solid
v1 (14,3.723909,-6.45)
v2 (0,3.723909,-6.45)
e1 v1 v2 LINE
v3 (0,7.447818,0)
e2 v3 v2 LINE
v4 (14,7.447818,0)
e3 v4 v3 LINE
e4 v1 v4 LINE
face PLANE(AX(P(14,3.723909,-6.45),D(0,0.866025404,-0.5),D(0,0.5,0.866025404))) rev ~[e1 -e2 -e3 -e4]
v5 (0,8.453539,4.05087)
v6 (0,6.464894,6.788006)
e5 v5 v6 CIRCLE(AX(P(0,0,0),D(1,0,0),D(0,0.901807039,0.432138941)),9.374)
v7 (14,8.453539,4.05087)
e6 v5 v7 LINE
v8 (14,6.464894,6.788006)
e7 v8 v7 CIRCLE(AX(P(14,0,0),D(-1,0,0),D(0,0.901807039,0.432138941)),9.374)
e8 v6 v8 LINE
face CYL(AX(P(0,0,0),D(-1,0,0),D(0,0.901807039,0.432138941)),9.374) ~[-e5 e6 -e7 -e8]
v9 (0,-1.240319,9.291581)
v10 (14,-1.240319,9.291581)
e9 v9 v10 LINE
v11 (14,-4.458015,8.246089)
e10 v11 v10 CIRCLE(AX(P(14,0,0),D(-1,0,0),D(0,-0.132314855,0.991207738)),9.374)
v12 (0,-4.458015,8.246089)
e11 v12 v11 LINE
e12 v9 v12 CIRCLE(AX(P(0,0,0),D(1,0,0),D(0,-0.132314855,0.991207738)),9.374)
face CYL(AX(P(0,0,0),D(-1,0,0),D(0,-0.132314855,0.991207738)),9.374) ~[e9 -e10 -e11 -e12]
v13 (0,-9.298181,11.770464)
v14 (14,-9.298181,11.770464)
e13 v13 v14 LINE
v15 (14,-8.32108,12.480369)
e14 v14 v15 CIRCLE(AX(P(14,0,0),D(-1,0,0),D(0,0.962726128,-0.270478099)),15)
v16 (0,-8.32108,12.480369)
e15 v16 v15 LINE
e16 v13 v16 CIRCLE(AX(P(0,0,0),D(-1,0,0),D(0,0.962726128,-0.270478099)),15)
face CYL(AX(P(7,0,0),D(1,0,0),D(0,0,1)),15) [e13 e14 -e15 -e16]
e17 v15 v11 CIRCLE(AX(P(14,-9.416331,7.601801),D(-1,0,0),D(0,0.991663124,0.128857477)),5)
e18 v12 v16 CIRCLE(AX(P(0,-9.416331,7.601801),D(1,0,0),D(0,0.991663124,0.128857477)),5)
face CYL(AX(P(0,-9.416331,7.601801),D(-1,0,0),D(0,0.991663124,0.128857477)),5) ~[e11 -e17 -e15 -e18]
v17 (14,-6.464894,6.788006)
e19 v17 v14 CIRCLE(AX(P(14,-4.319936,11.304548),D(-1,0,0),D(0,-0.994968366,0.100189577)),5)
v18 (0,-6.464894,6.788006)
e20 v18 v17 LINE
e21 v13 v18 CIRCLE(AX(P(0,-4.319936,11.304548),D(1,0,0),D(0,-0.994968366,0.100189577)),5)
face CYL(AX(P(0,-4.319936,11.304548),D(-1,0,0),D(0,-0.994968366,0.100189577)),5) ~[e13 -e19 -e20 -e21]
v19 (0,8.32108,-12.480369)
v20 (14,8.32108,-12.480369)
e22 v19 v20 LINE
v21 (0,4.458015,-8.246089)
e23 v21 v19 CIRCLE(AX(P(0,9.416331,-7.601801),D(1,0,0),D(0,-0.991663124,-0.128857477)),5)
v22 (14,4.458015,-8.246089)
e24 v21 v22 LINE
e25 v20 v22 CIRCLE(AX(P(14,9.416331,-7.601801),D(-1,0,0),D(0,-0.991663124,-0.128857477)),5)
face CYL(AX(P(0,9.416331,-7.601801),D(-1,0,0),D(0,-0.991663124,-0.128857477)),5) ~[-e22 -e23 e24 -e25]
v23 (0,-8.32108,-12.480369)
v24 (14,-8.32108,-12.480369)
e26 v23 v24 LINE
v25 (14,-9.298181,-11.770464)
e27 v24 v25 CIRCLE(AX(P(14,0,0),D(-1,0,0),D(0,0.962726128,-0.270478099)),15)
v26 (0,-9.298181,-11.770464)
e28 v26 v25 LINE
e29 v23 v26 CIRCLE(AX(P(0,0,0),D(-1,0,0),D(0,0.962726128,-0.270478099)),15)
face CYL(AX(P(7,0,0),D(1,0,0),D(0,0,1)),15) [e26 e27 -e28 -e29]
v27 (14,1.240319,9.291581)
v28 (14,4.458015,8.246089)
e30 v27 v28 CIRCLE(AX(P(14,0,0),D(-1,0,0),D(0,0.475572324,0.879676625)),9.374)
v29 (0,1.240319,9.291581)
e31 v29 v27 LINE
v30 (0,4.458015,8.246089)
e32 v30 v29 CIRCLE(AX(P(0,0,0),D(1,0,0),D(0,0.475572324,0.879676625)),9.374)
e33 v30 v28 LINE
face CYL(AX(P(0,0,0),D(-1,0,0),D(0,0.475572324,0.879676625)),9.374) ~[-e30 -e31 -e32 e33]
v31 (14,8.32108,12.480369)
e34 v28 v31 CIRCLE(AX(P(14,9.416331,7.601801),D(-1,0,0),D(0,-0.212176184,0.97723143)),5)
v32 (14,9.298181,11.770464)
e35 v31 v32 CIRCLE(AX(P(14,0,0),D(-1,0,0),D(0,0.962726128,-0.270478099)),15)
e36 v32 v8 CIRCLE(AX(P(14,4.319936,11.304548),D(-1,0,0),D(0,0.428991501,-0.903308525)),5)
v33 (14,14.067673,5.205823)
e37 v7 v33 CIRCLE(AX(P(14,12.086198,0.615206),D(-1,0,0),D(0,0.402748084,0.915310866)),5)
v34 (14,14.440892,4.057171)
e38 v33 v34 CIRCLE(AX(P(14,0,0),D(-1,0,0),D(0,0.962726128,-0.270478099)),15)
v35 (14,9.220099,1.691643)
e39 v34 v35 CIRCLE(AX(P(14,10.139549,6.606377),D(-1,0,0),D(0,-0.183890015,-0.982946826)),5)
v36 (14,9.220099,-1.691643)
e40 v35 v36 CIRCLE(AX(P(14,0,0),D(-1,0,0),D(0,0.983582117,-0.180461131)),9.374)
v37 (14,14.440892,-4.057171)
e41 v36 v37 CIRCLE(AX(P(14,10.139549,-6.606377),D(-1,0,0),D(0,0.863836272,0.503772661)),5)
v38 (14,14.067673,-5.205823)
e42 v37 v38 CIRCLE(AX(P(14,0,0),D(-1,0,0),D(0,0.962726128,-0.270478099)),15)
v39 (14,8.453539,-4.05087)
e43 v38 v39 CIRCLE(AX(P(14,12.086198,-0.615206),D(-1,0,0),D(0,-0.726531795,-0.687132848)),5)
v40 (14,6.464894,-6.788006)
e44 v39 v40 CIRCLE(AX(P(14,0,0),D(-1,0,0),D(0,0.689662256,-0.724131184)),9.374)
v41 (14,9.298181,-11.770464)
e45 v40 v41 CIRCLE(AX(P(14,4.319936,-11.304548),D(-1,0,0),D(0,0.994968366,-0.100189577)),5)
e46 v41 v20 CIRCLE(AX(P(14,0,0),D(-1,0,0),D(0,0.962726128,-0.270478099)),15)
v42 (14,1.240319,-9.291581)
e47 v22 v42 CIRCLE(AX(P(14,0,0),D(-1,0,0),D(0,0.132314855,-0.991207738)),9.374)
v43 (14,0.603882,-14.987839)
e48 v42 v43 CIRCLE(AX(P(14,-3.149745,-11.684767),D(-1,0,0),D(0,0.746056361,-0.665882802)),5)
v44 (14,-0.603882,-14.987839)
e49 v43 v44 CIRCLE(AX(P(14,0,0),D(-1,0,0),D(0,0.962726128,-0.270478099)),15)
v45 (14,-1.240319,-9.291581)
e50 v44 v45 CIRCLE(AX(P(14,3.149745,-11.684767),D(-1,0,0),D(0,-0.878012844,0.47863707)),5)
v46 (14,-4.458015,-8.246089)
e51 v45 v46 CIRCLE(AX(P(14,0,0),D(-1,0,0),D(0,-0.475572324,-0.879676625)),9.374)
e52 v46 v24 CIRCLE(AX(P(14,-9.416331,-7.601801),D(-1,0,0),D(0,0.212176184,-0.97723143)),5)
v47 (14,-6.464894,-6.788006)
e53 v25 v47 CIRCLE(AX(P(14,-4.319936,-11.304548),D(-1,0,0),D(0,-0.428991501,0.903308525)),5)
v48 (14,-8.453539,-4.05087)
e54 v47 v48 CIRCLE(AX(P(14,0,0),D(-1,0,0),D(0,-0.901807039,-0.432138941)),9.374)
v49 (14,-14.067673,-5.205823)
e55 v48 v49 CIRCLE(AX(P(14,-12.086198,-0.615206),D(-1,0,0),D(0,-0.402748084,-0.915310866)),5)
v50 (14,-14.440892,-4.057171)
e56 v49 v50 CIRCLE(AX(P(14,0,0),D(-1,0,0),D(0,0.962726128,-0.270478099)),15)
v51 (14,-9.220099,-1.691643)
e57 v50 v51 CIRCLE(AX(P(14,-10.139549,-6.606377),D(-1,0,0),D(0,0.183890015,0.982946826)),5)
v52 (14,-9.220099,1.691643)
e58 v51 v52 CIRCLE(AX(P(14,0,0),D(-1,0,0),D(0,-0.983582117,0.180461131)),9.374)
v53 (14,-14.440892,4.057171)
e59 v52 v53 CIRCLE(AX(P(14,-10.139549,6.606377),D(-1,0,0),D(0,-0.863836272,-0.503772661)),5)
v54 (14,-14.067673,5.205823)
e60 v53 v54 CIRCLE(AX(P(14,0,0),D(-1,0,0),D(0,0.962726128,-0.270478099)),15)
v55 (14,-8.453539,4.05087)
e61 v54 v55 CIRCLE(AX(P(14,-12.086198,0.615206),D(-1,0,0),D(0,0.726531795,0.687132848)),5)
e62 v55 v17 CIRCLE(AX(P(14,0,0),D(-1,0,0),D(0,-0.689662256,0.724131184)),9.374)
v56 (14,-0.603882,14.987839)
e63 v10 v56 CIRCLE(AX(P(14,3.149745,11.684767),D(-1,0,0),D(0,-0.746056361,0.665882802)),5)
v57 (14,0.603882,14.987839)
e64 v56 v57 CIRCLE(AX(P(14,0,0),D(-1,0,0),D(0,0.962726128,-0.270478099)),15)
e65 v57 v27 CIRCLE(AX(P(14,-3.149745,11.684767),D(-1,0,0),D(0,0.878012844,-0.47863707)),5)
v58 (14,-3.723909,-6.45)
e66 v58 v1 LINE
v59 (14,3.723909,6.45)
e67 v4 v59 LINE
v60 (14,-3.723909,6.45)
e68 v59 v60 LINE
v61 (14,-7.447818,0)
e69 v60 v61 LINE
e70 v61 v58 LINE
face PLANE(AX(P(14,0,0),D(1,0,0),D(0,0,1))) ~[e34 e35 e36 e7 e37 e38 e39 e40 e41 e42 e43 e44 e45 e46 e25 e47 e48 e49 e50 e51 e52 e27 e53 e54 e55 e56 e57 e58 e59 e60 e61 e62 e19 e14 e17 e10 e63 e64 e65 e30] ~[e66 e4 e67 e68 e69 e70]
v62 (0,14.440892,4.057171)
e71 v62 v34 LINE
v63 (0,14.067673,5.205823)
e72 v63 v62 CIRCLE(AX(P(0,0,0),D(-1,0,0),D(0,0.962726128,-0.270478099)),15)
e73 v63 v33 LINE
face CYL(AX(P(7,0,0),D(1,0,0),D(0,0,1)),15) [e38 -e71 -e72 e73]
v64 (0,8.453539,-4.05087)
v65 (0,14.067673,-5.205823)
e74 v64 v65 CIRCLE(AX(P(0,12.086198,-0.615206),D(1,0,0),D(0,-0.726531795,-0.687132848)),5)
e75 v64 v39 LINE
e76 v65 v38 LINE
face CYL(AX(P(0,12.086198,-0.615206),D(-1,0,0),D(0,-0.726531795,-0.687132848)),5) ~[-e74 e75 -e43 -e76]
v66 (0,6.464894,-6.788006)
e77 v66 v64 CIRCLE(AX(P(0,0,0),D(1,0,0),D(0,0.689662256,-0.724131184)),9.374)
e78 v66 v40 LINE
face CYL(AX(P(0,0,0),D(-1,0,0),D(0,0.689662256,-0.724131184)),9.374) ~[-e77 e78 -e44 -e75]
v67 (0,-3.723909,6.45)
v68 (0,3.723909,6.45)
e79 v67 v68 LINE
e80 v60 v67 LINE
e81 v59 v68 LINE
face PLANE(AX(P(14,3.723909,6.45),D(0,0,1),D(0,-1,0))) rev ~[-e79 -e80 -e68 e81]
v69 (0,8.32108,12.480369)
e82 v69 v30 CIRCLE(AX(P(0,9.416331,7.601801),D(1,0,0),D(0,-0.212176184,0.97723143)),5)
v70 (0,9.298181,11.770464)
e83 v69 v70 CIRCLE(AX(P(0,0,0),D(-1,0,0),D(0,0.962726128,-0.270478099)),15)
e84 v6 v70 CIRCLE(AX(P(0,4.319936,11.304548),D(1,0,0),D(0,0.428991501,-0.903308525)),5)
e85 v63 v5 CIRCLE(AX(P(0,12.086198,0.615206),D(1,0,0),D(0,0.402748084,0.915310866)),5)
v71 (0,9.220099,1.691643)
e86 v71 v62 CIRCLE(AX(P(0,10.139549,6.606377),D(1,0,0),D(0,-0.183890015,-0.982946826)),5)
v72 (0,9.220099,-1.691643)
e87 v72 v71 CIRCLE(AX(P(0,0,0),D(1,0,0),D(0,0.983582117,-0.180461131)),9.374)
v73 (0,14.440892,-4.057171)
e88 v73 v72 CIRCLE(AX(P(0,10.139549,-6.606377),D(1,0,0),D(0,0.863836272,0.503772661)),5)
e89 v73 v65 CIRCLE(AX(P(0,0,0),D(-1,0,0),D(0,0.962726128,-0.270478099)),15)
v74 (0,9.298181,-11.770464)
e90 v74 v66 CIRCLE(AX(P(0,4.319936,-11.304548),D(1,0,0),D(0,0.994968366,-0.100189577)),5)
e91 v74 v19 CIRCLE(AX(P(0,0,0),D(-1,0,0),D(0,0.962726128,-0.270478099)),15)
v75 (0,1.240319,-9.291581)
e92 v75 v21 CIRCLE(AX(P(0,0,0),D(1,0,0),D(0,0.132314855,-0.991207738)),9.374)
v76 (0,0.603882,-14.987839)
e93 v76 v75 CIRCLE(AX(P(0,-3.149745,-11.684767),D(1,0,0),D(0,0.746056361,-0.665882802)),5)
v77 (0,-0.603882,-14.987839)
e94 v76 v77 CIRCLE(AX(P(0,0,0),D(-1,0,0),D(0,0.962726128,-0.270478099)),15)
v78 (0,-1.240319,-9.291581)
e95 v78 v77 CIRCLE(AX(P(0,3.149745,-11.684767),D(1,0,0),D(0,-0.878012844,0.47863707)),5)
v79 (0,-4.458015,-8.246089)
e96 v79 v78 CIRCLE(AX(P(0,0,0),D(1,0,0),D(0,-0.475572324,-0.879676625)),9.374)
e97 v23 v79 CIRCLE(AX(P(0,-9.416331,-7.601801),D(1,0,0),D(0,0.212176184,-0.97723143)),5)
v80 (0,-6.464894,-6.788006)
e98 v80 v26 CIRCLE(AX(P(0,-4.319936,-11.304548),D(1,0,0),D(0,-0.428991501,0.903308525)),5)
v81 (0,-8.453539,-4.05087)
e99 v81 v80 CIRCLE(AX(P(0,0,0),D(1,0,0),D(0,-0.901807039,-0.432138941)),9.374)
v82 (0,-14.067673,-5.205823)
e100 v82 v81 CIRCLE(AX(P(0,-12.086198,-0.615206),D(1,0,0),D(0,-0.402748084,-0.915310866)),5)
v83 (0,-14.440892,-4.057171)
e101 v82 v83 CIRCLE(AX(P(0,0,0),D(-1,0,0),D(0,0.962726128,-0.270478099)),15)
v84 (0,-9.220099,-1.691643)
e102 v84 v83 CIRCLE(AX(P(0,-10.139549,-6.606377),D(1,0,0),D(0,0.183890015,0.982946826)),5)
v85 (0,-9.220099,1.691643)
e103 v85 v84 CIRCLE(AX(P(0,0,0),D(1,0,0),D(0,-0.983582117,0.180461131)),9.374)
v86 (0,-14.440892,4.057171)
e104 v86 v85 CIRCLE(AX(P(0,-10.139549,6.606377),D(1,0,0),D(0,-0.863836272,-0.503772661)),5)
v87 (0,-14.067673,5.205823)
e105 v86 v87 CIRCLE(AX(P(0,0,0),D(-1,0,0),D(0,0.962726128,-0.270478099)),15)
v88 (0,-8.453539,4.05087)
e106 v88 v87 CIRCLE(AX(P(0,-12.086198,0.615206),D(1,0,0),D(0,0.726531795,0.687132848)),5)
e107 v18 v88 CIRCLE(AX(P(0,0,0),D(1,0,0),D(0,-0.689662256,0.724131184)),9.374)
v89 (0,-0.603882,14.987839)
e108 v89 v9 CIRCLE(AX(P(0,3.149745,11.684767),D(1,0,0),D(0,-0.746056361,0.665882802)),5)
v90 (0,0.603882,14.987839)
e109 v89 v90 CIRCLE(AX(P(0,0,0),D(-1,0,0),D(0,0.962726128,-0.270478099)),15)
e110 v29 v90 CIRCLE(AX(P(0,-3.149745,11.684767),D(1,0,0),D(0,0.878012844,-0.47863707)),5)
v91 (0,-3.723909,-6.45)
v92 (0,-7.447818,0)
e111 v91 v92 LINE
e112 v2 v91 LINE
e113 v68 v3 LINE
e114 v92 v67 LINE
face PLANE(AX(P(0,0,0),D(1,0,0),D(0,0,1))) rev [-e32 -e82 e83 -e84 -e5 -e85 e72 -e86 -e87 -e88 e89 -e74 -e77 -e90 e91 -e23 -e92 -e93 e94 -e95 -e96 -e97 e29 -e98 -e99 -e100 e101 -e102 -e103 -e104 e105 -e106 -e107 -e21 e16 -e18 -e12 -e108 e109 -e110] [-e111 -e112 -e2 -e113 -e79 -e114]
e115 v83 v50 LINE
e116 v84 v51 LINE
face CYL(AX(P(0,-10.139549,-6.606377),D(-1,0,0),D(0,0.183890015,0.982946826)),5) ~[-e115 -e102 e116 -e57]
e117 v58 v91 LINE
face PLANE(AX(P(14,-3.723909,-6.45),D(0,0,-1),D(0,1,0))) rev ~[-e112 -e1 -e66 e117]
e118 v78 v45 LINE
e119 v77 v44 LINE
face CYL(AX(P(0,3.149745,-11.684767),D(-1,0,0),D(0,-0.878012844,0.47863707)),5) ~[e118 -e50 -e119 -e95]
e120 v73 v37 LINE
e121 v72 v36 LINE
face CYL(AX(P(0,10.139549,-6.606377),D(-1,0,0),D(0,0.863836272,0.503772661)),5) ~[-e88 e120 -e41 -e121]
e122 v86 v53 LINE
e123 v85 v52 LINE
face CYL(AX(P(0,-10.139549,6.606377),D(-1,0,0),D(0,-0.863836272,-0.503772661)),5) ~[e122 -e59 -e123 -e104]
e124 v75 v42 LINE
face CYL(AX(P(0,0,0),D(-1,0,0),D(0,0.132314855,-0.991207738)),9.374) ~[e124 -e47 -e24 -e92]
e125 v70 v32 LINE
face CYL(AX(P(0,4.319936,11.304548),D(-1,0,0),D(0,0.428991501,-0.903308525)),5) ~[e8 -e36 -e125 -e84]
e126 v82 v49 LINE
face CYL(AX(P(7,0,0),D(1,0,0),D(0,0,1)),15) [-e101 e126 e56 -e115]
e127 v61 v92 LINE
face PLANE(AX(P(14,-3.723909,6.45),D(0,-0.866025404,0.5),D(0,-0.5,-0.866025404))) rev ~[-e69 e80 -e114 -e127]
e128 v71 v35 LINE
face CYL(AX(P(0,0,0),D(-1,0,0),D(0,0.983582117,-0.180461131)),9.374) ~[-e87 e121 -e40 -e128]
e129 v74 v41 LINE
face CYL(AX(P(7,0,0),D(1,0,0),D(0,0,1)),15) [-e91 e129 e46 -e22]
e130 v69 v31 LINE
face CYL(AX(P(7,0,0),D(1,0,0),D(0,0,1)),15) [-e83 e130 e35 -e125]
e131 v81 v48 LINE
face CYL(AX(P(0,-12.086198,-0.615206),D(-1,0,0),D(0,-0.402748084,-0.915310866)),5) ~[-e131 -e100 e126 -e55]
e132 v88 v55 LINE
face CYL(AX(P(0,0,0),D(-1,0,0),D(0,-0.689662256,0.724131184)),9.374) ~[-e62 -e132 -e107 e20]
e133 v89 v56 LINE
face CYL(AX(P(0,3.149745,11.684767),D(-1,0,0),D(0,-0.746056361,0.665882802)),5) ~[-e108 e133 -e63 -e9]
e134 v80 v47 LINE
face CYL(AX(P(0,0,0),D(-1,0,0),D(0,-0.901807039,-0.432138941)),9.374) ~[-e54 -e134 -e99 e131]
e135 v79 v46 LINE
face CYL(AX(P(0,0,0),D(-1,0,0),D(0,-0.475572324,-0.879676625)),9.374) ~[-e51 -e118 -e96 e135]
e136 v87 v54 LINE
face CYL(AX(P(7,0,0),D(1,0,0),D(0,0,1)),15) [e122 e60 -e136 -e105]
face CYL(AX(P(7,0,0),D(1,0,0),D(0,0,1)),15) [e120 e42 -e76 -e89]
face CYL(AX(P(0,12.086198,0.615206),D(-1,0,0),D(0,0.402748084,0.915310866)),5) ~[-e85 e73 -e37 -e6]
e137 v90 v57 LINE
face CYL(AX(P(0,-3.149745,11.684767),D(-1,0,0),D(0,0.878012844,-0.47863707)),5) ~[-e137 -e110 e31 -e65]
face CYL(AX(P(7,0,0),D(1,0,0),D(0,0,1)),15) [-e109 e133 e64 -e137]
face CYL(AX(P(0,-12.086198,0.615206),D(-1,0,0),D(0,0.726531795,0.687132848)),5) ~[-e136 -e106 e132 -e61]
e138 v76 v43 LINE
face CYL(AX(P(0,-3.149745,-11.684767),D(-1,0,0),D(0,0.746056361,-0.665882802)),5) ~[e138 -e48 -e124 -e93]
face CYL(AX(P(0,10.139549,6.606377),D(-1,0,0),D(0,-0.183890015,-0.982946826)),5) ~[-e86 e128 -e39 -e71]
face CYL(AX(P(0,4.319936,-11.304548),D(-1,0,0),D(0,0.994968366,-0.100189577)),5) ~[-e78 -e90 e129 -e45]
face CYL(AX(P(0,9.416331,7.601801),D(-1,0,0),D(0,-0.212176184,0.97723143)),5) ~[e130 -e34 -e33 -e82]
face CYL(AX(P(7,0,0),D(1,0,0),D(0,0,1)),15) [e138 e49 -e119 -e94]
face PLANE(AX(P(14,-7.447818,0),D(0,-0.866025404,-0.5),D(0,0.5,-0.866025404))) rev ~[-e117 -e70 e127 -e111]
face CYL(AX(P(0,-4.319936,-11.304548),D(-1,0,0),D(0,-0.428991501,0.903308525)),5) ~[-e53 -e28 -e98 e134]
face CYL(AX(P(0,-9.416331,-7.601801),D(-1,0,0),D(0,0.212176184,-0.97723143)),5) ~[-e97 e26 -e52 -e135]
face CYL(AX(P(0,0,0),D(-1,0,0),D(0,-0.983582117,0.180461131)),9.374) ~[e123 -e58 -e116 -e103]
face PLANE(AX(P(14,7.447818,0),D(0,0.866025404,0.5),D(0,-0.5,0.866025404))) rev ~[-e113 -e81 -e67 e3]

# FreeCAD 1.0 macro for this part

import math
import FreeCAD as App
import Part
import Sketcher
from FreeCAD import Vector
Q = App.Units.Quantity


def add_polygon(sketch, points):
    """Adds a closed chain of lines whose ends are joined by coincident constraints."""
    first, n = sketch.GeometryCount, len(points)
    for a, b in zip(points, points[1:] + points[:1]):
        sketch.addGeometry(Part.LineSegment(App.Vector(*a, 0), App.Vector(*b, 0)), False)
    for i in range(n):
        sketch.addConstraint(Sketcher.Constraint("Coincident", first + i, 2, first + (i + 1) % n, 1))

doc = App.newDocument("Part")
body = doc.addObject("PartDesign::Body", "Body")

# Sketch on XZ plane
sketch1 = body.newObject("Sketcher::SketchObject", "Sketch")
sketch1.AttachmentSupport = (doc.getObject("XZ_Plane"), [""])
sketch1.MapMode = "FlatFace"
add_polygon(sketch1, [(0, -15), (0, 0), (14, 0), (14, -15)])  # lines 0-3
sketch1.addConstraint([
    Sketcher.Constraint("Vertical", 0),
    Sketcher.Constraint("Horizontal", 1),
    Sketcher.Constraint("Vertical", 2),
    Sketcher.Constraint("Horizontal", 3),
    Sketcher.Constraint("Coincident", 0, 2, -1, 1),
    Sketcher.Constraint("DistanceX", 1, 1, 1, 2, Q("14 mm")),
    Sketcher.Constraint("DistanceY", 0, 1, 0, 2, Q("15 mm")),
])
revolution = body.newObject("PartDesign::Revolution", "Revolution")
revolution.Profile = sketch1
revolution.ReferenceAxis = (sketch1, ["H_Axis"])
revolution.Angle = 360

# Sketch on YZ plane
sketch2 = body.newObject("Sketcher::SketchObject", "Sketch001")
sketch2.AttachmentSupport = (doc.getObject("YZ_Plane"), [""])
sketch2.MapMode = "FlatFace"
sketch2.addGeometry([
    Part.ArcOfCircle(Part.Circle(Vector(0, 0, 0), Vector(0, 0, 1), 9.374), math.radians(-10.396621), math.radians(10.396621)),
    Part.ArcOfCircle(Part.Circle(Vector(10.139549, -6.606377, 0), Vector(0, 0, 1), 5), math.radians(30.249913), math.radians(100.596425)),
    Part.ArcOfCircle(Part.Circle(Vector(0, 0, 0), Vector(0, 0, 1), 15.0254), math.radians(-15.785709), math.radians(15.785709)),
    Part.ArcOfCircle(Part.Circle(Vector(10.139549, 6.606377, 0), Vector(0, 0, 1), 5), math.radians(-100.596425), math.radians(-30.249913)),
], False)
sketch2.addConstraint([
    Sketcher.Constraint("Coincident", 0, 1, 1, 2),
    Sketcher.Constraint("Coincident", 1, 1, 2, 1),
    Sketcher.Constraint("Coincident", 2, 2, 3, 2),
    Sketcher.Constraint("Coincident", 3, 1, 0, 2),
    Sketcher.Constraint("Coincident", 0, 3, -1, 1),
    Sketcher.Constraint("Coincident", 2, 3, -1, 1),
    Sketcher.Constraint("Equal", 1, 3),
    Sketcher.Constraint("Symmetric", 1, 3, 3, 3, -1),
    Sketcher.Constraint("Radius", 1, Q("5 mm")),
    Sketcher.Constraint("Radius", 0, Q("9.374 mm")),
    Sketcher.Constraint("Radius", 2, Q("15.0254 mm")),
    Sketcher.Constraint("DistanceX", -1, 1, 0, 1, Q("9.220099 mm")),
    Sketcher.Constraint("DistanceX", -1, 1, 1, 3, Q("10.139549 mm")),
])
pocket1 = body.newObject("PartDesign::Pocket", "Pocket")
pocket1.Profile = sketch2
pocket1.Type = "ThroughAll"
pocket1.Reversed = True
doc.recompute()

polarpattern = body.newObject("PartDesign::PolarPattern", "PolarPattern")
polarpattern.Originals = [pocket1]
polarpattern.Axis = (doc.getObject("X_Axis"), [""])
polarpattern.Angle = 360
polarpattern.Occurrences = 10
body.Tip = polarpattern

# Sketch on YZ plane
sketch3 = body.newObject("Sketcher::SketchObject", "Sketch002")
sketch3.AttachmentSupport = (doc.getObject("YZ_Plane"), [""])
sketch3.MapMode = "FlatFace"
sketch3.addGeometry(Part.Circle(Vector(0, 0, 0), Vector(0, 0, 1), 5), False)
sketch3.addConstraint([
    Sketcher.Constraint("Coincident", 0, 3, -1, 1),
    Sketcher.Constraint("Diameter", 0, Q("10 mm")),
])
pocket2 = body.newObject("PartDesign::Pocket", "Pocket001")
pocket2.Profile = sketch3
pocket2.Length = 100.000102
pocket2.Midplane = True

# Sketch on YZ plane
sketch4 = body.newObject("Sketcher::SketchObject", "Sketch003")
sketch4.AttachmentSupport = (doc.getObject("YZ_Plane"), [""])
sketch4.MapMode = "FlatFace"
sketch4.AttachmentOffset = App.Placement(Vector(0, 0, 14), App.Rotation())
add_polygon(sketch4, [(-7.447818, 0), (-3.723909, -6.45), (3.723909, -6.45), (7.447818, 0), (3.723909, 6.45), (-3.723909, 6.45)])  # lines 0-5
sketch4.addConstraint([
    Sketcher.Constraint("Horizontal", 1),
    Sketcher.Constraint("Horizontal", 4),
    Sketcher.Constraint("Symmetric", 0, 2, 3, 2, -1, 1),
    Sketcher.Constraint("Symmetric", 2, 2, 5, 2, -1, 1),
    Sketcher.Constraint("PointOnObject", 2, 2, -1),
    Sketcher.Constraint("Parallel", 2, 5),
    Sketcher.Constraint("Vertical", 1, 2, 3, 2),
    Sketcher.Constraint("Angle", 0, Q("-60 deg")),
    Sketcher.Constraint("DistanceY", 1, 2, 3, 2, Q("12.9 mm")),
    Sketcher.Constraint("DistanceX", 1, 1, 1, 2, Q("7.447818 mm")),
])
pocket3 = body.newObject("PartDesign::Pocket", "Pocket002")
pocket3.Profile = sketch4
pocket3.Type = "ThroughAll"

doc.recompute()
